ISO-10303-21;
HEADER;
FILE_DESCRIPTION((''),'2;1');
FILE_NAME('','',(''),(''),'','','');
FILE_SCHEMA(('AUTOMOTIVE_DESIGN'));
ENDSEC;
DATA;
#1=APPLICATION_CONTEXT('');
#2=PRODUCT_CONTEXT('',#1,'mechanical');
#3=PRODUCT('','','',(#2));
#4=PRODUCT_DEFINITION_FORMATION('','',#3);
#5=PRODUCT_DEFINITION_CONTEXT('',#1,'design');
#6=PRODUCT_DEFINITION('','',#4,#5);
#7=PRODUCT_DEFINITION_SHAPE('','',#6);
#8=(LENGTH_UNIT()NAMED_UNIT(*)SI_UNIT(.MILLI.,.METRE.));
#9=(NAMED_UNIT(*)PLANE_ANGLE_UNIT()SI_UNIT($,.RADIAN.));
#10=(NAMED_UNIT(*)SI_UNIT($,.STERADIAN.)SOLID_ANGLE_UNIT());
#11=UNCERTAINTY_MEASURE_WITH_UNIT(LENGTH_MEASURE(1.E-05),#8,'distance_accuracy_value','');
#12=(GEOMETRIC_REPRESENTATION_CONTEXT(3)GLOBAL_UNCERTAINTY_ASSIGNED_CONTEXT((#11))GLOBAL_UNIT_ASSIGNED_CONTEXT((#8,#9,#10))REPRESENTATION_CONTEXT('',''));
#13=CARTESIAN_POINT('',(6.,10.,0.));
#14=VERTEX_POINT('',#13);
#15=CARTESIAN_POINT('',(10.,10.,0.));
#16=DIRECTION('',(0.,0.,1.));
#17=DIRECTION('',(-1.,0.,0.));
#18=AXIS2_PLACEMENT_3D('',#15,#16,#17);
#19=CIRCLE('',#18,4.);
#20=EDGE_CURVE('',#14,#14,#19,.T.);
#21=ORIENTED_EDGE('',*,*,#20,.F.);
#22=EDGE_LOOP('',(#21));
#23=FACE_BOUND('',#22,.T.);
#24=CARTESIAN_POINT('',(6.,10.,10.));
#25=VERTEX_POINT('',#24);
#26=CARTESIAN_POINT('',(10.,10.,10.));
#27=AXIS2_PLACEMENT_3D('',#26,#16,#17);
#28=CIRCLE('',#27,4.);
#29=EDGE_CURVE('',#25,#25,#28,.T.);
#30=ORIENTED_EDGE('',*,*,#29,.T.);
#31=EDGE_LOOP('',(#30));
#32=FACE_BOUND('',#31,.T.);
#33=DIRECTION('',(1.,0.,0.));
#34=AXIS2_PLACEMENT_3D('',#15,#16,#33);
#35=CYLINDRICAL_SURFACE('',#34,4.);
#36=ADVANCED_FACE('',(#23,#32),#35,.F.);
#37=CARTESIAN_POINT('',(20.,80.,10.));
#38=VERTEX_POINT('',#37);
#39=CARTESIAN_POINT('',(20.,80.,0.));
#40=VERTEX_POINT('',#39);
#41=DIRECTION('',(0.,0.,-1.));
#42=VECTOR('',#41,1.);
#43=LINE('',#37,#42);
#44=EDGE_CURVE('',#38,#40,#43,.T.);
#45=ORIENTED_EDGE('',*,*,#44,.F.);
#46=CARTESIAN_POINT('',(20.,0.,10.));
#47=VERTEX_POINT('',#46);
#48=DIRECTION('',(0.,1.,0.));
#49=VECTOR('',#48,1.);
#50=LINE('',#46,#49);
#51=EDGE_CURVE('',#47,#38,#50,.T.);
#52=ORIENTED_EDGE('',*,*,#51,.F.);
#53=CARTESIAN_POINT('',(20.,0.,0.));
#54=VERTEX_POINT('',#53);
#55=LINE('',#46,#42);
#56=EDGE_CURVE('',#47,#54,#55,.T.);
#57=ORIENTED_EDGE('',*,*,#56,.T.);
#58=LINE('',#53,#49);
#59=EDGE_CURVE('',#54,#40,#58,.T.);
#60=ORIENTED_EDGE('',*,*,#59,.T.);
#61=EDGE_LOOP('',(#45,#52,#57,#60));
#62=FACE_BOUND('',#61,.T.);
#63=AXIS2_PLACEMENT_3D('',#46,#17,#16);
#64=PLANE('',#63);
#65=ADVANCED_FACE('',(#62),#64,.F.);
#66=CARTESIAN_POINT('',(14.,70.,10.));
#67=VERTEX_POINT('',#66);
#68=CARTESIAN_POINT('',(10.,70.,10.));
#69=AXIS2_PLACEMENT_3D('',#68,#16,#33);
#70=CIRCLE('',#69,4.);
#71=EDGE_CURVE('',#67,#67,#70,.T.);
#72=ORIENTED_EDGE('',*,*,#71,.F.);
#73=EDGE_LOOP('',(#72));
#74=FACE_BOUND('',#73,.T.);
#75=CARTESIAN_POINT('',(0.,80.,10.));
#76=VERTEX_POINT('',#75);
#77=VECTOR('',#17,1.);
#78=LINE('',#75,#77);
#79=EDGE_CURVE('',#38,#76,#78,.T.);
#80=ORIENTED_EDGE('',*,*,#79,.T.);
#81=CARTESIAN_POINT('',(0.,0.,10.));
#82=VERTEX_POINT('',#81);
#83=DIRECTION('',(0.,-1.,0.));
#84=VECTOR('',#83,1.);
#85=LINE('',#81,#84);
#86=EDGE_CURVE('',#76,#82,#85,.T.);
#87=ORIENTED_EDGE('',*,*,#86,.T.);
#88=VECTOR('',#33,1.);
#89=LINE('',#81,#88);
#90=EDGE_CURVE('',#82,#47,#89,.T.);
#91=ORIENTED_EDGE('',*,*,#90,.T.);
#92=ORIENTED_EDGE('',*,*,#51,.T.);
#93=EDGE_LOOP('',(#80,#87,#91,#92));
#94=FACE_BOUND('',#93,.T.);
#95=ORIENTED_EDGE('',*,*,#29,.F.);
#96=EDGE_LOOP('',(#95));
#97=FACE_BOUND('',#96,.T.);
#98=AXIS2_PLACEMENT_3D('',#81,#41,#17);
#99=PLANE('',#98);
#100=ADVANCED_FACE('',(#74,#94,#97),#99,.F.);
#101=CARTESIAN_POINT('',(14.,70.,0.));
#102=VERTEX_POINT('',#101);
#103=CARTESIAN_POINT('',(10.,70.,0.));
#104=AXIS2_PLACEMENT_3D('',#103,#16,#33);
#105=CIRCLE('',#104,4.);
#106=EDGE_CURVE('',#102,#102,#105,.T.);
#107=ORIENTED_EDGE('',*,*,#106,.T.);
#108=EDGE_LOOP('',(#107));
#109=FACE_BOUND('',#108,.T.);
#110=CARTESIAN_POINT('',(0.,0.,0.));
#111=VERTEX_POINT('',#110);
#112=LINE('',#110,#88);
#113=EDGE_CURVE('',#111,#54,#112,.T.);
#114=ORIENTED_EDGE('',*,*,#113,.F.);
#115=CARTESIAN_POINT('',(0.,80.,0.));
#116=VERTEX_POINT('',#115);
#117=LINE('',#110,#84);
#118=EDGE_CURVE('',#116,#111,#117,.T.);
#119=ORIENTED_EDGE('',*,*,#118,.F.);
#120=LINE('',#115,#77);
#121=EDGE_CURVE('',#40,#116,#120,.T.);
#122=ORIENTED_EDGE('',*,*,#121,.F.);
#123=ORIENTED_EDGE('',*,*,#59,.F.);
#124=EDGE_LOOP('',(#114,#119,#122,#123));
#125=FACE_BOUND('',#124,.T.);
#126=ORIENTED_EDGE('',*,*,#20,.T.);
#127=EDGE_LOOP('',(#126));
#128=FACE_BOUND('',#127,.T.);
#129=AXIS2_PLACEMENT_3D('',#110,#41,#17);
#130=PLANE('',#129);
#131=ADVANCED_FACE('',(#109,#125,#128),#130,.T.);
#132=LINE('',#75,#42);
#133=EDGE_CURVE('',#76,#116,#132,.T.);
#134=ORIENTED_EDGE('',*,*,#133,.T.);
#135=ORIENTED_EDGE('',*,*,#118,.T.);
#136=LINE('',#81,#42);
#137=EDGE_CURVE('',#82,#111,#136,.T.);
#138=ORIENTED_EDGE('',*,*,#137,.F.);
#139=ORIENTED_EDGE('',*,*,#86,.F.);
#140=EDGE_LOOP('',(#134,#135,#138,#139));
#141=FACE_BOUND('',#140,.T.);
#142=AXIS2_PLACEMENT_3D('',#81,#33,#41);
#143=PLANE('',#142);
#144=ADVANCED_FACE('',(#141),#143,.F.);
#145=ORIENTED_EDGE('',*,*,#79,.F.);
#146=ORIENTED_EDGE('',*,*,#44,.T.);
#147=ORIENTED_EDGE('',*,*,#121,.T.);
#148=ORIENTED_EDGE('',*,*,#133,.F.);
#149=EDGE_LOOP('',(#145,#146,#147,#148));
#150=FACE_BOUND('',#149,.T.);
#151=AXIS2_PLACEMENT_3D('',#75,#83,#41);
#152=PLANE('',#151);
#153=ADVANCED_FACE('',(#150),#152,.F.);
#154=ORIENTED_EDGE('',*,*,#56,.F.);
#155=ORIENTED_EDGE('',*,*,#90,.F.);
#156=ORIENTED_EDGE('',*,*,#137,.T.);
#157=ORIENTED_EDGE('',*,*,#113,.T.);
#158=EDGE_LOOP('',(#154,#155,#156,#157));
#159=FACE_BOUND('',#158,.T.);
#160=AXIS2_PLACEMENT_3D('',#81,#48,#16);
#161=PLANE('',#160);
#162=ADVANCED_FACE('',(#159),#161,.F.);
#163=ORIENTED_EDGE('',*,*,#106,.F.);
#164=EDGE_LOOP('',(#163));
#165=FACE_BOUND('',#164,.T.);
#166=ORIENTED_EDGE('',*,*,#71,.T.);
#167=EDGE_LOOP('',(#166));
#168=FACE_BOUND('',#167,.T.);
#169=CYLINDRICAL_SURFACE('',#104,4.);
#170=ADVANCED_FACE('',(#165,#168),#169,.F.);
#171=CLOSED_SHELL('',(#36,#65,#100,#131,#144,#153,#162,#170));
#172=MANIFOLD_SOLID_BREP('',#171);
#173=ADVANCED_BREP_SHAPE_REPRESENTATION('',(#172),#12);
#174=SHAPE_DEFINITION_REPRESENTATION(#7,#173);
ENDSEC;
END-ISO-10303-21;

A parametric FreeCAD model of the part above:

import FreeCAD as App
import Part
import Sketcher
Q = App.Units.Quantity


def add_polygon(sketch, points):
    """Adds a closed chain of lines whose ends are joined by coincident constraints."""
    first, n = sketch.GeometryCount, len(points)
    for a, b in zip(points, points[1:] + points[:1]):
        sketch.addGeometry(Part.LineSegment(App.Vector(*a, 0), App.Vector(*b, 0)), False)
    for i in range(n):
        sketch.addConstraint(Sketcher.Constraint("Coincident", first + i, 2, first + (i + 1) % n, 1))

doc = App.newDocument("Part")
body = doc.addObject("PartDesign::Body", "Body")

sketch1 = doc.addObject("Sketcher::SketchObject", "Sketch")
body.addObject(sketch1)
sketch1.AttachmentSupport = (doc.XY_Plane, [""])
sketch1.MapMode = "FlatFace"
add_polygon(sketch1, [(0, 80), (0, 0), (20, 0), (20, 80)])
sketch1.addConstraint(Sketcher.Constraint("Vertical", 0))
sketch1.addConstraint(Sketcher.Constraint("Horizontal", 1))
sketch1.addConstraint(Sketcher.Constraint("Vertical", 2))
sketch1.addConstraint(Sketcher.Constraint("Horizontal", 3))
sketch1.addConstraint(Sketcher.Constraint("Coincident", 0, 2, -1, 1))
sketch1.addConstraint(Sketcher.Constraint("DistanceX", 1, 1, 1, 2, Q("20 mm")))
sketch1.addConstraint(Sketcher.Constraint("DistanceY", 0, 2, 0, 1, Q("80 mm")))
pad1 = doc.addObject("PartDesign::Pad", "Pad")
body.addObject(pad1)
pad1.Profile = sketch1
pad1.Length = 10

sketch2 = doc.addObject("Sketcher::SketchObject", "Sketch001")
body.addObject(sketch2)
sketch2.AttachmentSupport = (doc.XY_Plane, [""])
sketch2.MapMode = "FlatFace"
sketch2.AttachmentOffset = App.Placement(App.Vector(0, 0, 10), App.Rotation())
sketch2.addGeometry(Part.Circle(App.Vector(10, 70, 0), App.Vector(0, 0, 1), 4), False)
sketch2.addGeometry(Part.Circle(App.Vector(10, 10, 0), App.Vector(0, 0, 1), 4), False)
sketch2.addConstraint(Sketcher.Constraint("Equal", 0, 1))
sketch2.addConstraint(Sketcher.Constraint("Vertical", 0, 3, 1, 3))
sketch2.addConstraint(Sketcher.Constraint("Diameter", 0, Q("8 mm")))
sketch2.addConstraint(Sketcher.Constraint("DistanceX", -1, 1, 0, 3, Q("10 mm")))
sketch2.addConstraint(Sketcher.Constraint("DistanceY", -1, 1, 0, 3, Q("70 mm")))
sketch2.addConstraint(Sketcher.Constraint("DistanceY", -1, 1, 1, 3, Q("10 mm")))
pocket1 = doc.addObject("PartDesign::Pocket", "Pocket")
body.addObject(pocket1)
pocket1.Profile = sketch2
pocket1.Type = "ThroughAll"

doc.recompute()
